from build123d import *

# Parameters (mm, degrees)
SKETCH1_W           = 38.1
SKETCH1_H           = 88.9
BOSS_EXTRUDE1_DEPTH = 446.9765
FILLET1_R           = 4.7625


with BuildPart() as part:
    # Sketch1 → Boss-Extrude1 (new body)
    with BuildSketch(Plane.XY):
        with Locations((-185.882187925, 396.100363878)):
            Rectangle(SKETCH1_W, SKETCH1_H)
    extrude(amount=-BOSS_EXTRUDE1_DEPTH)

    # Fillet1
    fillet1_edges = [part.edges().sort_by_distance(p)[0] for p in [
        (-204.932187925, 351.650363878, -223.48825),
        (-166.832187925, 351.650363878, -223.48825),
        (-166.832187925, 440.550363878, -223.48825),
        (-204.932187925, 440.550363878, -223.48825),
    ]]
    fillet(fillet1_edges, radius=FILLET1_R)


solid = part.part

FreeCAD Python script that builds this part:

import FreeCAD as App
import Part
import Sketcher
Q = App.Units.Quantity


def edges_at(feature, points):
    """Names of the edges that pass closest to the given points."""
    edges = feature.Shape.Edges
    near = lambda p: min(range(len(edges)), key=lambda i: edges[i].distToShape(Part.Vertex(*p))[0])
    return sorted({f"Edge{near(p) + 1}" for p in points})


def add_polygon(sketch, points):
    """Adds a closed chain of lines whose ends are joined by coincident constraints."""
    first, n = sketch.GeometryCount, len(points)
    for a, b in zip(points, points[1:] + points[:1]):
        sketch.addGeometry(Part.LineSegment(App.Vector(*a, 0), App.Vector(*b, 0)), False)
    for i in range(n):
        sketch.addConstraint(Sketcher.Constraint("Coincident", first + i, 2, first + (i + 1) % n, 1))

doc = App.newDocument("Part")
body = doc.addObject("PartDesign::Body", "Body")

# Sketch on XY plane
sketch1 = body.newObject("Sketcher::SketchObject", "Sketch")
sketch1.AttachmentSupport = (doc.getObject("XY_Plane"), [""])
sketch1.MapMode = "FlatFace"
add_polygon(sketch1, [(-205, 441), (-205, 352), (-167, 352), (-167, 441)])  # lines 0-3
sketch1.addConstraint(Sketcher.Constraint("Vertical", 0))
sketch1.addConstraint(Sketcher.Constraint("Horizontal", 1))
sketch1.addConstraint(Sketcher.Constraint("Vertical", 2))
sketch1.addConstraint(Sketcher.Constraint("Horizontal", 3))
sketch1.addConstraint(Sketcher.Constraint("DistanceX", 1, 1, 1, 2, Q("1.5 in")))
sketch1.addConstraint(Sketcher.Constraint("DistanceY", 0, 2, 0, 1, Q("3.5 in")))
sketch1.addConstraint(Sketcher.Constraint("DistanceX", 0, 2, -1, 1, 204.932188))
sketch1.addConstraint(Sketcher.Constraint("DistanceY", -1, 1, 0, 2, 351.650364))
pad1 = body.newObject("PartDesign::Pad", "Pad")
pad1.Profile = sketch1
pad1.Length = Q("17.5975 in")
pad1.Reversed = True
doc.recompute()

fillet = body.newObject("PartDesign::Fillet", "Fillet")
fillet.Base = (pad1, edges_at(pad1, [
    (-204.932, 351.65, -223.488),
    (-166.832, 351.65, -223.488),
    (-166.832, 440.55, -223.488),
    (-204.932, 440.55, -223.488),
]))
fillet.Radius = Q("0.1875 in")

doc.recompute()
